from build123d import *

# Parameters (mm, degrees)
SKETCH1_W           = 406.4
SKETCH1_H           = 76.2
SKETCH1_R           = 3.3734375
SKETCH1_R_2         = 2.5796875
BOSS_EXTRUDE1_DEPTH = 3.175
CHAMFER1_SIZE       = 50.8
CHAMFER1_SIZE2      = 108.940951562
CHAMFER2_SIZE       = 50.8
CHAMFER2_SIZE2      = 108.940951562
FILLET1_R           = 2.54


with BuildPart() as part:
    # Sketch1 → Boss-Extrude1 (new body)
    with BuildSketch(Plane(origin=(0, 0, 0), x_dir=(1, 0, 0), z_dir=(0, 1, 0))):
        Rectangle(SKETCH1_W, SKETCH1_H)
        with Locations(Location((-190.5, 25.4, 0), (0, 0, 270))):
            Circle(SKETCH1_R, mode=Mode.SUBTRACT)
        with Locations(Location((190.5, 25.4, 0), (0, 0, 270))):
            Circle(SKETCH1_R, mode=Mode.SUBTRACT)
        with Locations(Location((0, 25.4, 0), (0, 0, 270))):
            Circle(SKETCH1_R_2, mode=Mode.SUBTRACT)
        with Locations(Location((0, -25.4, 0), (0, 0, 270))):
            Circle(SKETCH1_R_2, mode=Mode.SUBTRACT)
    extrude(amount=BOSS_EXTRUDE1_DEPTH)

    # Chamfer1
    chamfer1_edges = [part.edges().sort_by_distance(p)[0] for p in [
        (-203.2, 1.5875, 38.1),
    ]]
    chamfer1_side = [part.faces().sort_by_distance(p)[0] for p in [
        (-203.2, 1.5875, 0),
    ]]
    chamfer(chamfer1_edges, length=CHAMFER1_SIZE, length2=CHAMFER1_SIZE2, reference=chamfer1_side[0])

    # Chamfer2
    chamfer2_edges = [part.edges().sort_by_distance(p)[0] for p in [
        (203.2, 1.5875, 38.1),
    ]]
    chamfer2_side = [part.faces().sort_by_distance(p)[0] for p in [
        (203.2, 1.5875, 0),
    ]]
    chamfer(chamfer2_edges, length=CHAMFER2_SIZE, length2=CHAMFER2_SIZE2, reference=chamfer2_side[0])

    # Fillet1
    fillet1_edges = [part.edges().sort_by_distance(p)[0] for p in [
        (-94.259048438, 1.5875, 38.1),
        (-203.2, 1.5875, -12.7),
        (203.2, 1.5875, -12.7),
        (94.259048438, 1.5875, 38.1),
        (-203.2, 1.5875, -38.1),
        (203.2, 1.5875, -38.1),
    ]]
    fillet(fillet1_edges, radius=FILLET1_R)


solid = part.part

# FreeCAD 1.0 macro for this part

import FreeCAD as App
import Part
import Sketcher
from FreeCAD import Vector
Q = App.Units.Quantity


def edges_at(feature, points):
    """Names of the edges that pass closest to the given points."""
    edges = feature.Shape.Edges
    near = lambda p: min(range(len(edges)), key=lambda i: edges[i].distToShape(Part.Vertex(*p))[0])
    return sorted({f"Edge{near(p) + 1}" for p in points})

doc = App.newDocument("Part")
body = doc.addObject("PartDesign::Body", "Body")

sketch1 = body.newObject("Sketcher::SketchObject", "Sketch")
sketch1.AttachmentSupport = (doc.getObject("XZ_Plane"), [""])
sketch1.MapMode = "FlatFace"
sketch1.addGeometry(Part.LineSegment(Vector(-203.2, -38.1, 0), Vector(-203.2, 38.1, 0)), False)
sketch1.addGeometry(Part.LineSegment(Vector(-203.2, 38.1, 0), Vector(203.2, 38.1, 0)), False)
sketch1.addGeometry(Part.LineSegment(Vector(203.2, 38.1, 0), Vector(203.2, -38.1, 0)), False)
sketch1.addGeometry(Part.LineSegment(Vector(203.2, -38.1, 0), Vector(-203.2, -38.1, 0)), False)
sketch1.addGeometry(Part.Circle(Vector(0, 25.4, 0), Vector(0, 0, 1), 2.6), False)
sketch1.addGeometry(Part.Circle(Vector(-190.5, -25.4, 0), Vector(0, 0, 1), 3.4), False)
sketch1.addGeometry(Part.Circle(Vector(0, -25.4, 0), Vector(0, 0, 1), 2.6), False)
sketch1.addGeometry(Part.Circle(Vector(190.5, -25.4, 0), Vector(0, 0, 1), 3.4), False)
sketch1.addConstraint(Sketcher.Constraint("Coincident", 0, 2, 1, 1))
sketch1.addConstraint(Sketcher.Constraint("Coincident", 1, 2, 2, 1))
sketch1.addConstraint(Sketcher.Constraint("Coincident", 2, 2, 3, 1))
sketch1.addConstraint(Sketcher.Constraint("Coincident", 3, 2, 0, 1))
sketch1.addConstraint(Sketcher.Constraint("Vertical", 0))
sketch1.addConstraint(Sketcher.Constraint("Horizontal", 1))
sketch1.addConstraint(Sketcher.Constraint("Vertical", 2))
sketch1.addConstraint(Sketcher.Constraint("Horizontal", 3))
sketch1.addConstraint(Sketcher.Constraint("Equal", 4, 6))
sketch1.addConstraint(Sketcher.Constraint("Equal", 5, 7))
sketch1.addConstraint(Sketcher.Constraint("Symmetric", 4, 3, 6, 3, -1, 1))
sketch1.addConstraint(Sketcher.Constraint("Symmetric", 0, 2, 2, 2, -1, 1))
sketch1.addConstraint(Sketcher.Constraint("Symmetric", 5, 3, 7, 3, -2))
sketch1.addConstraint(Sketcher.Constraint("PointOnObject", 4, 3, -2))
sketch1.addConstraint(Sketcher.Constraint("Horizontal", 5, 3, 6, 3))
sketch1.addConstraint(Sketcher.Constraint("DistanceX", 1, 1, 1, 2, Q("16 in")))
sketch1.addConstraint(Sketcher.Constraint("DistanceY", 0, 1, 0, 2, Q("3 in")))
sketch1.addConstraint(Sketcher.Constraint("Diameter", 4, Q("0.203125 in")))
sketch1.addConstraint(Sketcher.Constraint("Diameter", 5, Q("0.265625 in")))
sketch1.addConstraint(Sketcher.Constraint("DistanceY", -1, 1, 4, 3, Q("1 in")))
sketch1.addConstraint(Sketcher.Constraint("DistanceX", 5, 3, 7, 3, Q("15 in")))
pad1 = body.newObject("PartDesign::Pad", "Pad")
pad1.Profile = sketch1
pad1.Length = Q("0.125 in")
pad1.Reversed = True
doc.recompute()

chamfer = body.newObject("PartDesign::Chamfer", "Chamfer")
chamfer.Base = (pad1, edges_at(pad1, [(-203.2, 1.587, 38.1)]))
chamfer.ChamferType = "Two distances"
chamfer.Size = Q("2 in")
chamfer.Size2 = 108.940952
doc.recompute()

chamfer2 = body.newObject("PartDesign::Chamfer", "Chamfer001")
chamfer2.Base = (chamfer, edges_at(chamfer, [(203.2, 1.587, 38.1)]))
chamfer2.ChamferType = "Two distances"
chamfer2.Size = Q("2 in")
chamfer2.Size2 = 108.940952
chamfer2.FlipDirection = True
doc.recompute()

fillet = body.newObject("PartDesign::Fillet", "Fillet")
fillet.Base = (chamfer2, edges_at(chamfer2, [
    (-94.259, 1.587, 38.1),
    (-203.2, 1.587, -12.7),
    (203.2, 1.587, -12.7),
    (94.259, 1.587, 38.1),
    (-203.2, 1.587, -38.1),
    (203.2, 1.587, -38.1),
]))
fillet.Radius = Q("0.1 in")

doc.recompute()
